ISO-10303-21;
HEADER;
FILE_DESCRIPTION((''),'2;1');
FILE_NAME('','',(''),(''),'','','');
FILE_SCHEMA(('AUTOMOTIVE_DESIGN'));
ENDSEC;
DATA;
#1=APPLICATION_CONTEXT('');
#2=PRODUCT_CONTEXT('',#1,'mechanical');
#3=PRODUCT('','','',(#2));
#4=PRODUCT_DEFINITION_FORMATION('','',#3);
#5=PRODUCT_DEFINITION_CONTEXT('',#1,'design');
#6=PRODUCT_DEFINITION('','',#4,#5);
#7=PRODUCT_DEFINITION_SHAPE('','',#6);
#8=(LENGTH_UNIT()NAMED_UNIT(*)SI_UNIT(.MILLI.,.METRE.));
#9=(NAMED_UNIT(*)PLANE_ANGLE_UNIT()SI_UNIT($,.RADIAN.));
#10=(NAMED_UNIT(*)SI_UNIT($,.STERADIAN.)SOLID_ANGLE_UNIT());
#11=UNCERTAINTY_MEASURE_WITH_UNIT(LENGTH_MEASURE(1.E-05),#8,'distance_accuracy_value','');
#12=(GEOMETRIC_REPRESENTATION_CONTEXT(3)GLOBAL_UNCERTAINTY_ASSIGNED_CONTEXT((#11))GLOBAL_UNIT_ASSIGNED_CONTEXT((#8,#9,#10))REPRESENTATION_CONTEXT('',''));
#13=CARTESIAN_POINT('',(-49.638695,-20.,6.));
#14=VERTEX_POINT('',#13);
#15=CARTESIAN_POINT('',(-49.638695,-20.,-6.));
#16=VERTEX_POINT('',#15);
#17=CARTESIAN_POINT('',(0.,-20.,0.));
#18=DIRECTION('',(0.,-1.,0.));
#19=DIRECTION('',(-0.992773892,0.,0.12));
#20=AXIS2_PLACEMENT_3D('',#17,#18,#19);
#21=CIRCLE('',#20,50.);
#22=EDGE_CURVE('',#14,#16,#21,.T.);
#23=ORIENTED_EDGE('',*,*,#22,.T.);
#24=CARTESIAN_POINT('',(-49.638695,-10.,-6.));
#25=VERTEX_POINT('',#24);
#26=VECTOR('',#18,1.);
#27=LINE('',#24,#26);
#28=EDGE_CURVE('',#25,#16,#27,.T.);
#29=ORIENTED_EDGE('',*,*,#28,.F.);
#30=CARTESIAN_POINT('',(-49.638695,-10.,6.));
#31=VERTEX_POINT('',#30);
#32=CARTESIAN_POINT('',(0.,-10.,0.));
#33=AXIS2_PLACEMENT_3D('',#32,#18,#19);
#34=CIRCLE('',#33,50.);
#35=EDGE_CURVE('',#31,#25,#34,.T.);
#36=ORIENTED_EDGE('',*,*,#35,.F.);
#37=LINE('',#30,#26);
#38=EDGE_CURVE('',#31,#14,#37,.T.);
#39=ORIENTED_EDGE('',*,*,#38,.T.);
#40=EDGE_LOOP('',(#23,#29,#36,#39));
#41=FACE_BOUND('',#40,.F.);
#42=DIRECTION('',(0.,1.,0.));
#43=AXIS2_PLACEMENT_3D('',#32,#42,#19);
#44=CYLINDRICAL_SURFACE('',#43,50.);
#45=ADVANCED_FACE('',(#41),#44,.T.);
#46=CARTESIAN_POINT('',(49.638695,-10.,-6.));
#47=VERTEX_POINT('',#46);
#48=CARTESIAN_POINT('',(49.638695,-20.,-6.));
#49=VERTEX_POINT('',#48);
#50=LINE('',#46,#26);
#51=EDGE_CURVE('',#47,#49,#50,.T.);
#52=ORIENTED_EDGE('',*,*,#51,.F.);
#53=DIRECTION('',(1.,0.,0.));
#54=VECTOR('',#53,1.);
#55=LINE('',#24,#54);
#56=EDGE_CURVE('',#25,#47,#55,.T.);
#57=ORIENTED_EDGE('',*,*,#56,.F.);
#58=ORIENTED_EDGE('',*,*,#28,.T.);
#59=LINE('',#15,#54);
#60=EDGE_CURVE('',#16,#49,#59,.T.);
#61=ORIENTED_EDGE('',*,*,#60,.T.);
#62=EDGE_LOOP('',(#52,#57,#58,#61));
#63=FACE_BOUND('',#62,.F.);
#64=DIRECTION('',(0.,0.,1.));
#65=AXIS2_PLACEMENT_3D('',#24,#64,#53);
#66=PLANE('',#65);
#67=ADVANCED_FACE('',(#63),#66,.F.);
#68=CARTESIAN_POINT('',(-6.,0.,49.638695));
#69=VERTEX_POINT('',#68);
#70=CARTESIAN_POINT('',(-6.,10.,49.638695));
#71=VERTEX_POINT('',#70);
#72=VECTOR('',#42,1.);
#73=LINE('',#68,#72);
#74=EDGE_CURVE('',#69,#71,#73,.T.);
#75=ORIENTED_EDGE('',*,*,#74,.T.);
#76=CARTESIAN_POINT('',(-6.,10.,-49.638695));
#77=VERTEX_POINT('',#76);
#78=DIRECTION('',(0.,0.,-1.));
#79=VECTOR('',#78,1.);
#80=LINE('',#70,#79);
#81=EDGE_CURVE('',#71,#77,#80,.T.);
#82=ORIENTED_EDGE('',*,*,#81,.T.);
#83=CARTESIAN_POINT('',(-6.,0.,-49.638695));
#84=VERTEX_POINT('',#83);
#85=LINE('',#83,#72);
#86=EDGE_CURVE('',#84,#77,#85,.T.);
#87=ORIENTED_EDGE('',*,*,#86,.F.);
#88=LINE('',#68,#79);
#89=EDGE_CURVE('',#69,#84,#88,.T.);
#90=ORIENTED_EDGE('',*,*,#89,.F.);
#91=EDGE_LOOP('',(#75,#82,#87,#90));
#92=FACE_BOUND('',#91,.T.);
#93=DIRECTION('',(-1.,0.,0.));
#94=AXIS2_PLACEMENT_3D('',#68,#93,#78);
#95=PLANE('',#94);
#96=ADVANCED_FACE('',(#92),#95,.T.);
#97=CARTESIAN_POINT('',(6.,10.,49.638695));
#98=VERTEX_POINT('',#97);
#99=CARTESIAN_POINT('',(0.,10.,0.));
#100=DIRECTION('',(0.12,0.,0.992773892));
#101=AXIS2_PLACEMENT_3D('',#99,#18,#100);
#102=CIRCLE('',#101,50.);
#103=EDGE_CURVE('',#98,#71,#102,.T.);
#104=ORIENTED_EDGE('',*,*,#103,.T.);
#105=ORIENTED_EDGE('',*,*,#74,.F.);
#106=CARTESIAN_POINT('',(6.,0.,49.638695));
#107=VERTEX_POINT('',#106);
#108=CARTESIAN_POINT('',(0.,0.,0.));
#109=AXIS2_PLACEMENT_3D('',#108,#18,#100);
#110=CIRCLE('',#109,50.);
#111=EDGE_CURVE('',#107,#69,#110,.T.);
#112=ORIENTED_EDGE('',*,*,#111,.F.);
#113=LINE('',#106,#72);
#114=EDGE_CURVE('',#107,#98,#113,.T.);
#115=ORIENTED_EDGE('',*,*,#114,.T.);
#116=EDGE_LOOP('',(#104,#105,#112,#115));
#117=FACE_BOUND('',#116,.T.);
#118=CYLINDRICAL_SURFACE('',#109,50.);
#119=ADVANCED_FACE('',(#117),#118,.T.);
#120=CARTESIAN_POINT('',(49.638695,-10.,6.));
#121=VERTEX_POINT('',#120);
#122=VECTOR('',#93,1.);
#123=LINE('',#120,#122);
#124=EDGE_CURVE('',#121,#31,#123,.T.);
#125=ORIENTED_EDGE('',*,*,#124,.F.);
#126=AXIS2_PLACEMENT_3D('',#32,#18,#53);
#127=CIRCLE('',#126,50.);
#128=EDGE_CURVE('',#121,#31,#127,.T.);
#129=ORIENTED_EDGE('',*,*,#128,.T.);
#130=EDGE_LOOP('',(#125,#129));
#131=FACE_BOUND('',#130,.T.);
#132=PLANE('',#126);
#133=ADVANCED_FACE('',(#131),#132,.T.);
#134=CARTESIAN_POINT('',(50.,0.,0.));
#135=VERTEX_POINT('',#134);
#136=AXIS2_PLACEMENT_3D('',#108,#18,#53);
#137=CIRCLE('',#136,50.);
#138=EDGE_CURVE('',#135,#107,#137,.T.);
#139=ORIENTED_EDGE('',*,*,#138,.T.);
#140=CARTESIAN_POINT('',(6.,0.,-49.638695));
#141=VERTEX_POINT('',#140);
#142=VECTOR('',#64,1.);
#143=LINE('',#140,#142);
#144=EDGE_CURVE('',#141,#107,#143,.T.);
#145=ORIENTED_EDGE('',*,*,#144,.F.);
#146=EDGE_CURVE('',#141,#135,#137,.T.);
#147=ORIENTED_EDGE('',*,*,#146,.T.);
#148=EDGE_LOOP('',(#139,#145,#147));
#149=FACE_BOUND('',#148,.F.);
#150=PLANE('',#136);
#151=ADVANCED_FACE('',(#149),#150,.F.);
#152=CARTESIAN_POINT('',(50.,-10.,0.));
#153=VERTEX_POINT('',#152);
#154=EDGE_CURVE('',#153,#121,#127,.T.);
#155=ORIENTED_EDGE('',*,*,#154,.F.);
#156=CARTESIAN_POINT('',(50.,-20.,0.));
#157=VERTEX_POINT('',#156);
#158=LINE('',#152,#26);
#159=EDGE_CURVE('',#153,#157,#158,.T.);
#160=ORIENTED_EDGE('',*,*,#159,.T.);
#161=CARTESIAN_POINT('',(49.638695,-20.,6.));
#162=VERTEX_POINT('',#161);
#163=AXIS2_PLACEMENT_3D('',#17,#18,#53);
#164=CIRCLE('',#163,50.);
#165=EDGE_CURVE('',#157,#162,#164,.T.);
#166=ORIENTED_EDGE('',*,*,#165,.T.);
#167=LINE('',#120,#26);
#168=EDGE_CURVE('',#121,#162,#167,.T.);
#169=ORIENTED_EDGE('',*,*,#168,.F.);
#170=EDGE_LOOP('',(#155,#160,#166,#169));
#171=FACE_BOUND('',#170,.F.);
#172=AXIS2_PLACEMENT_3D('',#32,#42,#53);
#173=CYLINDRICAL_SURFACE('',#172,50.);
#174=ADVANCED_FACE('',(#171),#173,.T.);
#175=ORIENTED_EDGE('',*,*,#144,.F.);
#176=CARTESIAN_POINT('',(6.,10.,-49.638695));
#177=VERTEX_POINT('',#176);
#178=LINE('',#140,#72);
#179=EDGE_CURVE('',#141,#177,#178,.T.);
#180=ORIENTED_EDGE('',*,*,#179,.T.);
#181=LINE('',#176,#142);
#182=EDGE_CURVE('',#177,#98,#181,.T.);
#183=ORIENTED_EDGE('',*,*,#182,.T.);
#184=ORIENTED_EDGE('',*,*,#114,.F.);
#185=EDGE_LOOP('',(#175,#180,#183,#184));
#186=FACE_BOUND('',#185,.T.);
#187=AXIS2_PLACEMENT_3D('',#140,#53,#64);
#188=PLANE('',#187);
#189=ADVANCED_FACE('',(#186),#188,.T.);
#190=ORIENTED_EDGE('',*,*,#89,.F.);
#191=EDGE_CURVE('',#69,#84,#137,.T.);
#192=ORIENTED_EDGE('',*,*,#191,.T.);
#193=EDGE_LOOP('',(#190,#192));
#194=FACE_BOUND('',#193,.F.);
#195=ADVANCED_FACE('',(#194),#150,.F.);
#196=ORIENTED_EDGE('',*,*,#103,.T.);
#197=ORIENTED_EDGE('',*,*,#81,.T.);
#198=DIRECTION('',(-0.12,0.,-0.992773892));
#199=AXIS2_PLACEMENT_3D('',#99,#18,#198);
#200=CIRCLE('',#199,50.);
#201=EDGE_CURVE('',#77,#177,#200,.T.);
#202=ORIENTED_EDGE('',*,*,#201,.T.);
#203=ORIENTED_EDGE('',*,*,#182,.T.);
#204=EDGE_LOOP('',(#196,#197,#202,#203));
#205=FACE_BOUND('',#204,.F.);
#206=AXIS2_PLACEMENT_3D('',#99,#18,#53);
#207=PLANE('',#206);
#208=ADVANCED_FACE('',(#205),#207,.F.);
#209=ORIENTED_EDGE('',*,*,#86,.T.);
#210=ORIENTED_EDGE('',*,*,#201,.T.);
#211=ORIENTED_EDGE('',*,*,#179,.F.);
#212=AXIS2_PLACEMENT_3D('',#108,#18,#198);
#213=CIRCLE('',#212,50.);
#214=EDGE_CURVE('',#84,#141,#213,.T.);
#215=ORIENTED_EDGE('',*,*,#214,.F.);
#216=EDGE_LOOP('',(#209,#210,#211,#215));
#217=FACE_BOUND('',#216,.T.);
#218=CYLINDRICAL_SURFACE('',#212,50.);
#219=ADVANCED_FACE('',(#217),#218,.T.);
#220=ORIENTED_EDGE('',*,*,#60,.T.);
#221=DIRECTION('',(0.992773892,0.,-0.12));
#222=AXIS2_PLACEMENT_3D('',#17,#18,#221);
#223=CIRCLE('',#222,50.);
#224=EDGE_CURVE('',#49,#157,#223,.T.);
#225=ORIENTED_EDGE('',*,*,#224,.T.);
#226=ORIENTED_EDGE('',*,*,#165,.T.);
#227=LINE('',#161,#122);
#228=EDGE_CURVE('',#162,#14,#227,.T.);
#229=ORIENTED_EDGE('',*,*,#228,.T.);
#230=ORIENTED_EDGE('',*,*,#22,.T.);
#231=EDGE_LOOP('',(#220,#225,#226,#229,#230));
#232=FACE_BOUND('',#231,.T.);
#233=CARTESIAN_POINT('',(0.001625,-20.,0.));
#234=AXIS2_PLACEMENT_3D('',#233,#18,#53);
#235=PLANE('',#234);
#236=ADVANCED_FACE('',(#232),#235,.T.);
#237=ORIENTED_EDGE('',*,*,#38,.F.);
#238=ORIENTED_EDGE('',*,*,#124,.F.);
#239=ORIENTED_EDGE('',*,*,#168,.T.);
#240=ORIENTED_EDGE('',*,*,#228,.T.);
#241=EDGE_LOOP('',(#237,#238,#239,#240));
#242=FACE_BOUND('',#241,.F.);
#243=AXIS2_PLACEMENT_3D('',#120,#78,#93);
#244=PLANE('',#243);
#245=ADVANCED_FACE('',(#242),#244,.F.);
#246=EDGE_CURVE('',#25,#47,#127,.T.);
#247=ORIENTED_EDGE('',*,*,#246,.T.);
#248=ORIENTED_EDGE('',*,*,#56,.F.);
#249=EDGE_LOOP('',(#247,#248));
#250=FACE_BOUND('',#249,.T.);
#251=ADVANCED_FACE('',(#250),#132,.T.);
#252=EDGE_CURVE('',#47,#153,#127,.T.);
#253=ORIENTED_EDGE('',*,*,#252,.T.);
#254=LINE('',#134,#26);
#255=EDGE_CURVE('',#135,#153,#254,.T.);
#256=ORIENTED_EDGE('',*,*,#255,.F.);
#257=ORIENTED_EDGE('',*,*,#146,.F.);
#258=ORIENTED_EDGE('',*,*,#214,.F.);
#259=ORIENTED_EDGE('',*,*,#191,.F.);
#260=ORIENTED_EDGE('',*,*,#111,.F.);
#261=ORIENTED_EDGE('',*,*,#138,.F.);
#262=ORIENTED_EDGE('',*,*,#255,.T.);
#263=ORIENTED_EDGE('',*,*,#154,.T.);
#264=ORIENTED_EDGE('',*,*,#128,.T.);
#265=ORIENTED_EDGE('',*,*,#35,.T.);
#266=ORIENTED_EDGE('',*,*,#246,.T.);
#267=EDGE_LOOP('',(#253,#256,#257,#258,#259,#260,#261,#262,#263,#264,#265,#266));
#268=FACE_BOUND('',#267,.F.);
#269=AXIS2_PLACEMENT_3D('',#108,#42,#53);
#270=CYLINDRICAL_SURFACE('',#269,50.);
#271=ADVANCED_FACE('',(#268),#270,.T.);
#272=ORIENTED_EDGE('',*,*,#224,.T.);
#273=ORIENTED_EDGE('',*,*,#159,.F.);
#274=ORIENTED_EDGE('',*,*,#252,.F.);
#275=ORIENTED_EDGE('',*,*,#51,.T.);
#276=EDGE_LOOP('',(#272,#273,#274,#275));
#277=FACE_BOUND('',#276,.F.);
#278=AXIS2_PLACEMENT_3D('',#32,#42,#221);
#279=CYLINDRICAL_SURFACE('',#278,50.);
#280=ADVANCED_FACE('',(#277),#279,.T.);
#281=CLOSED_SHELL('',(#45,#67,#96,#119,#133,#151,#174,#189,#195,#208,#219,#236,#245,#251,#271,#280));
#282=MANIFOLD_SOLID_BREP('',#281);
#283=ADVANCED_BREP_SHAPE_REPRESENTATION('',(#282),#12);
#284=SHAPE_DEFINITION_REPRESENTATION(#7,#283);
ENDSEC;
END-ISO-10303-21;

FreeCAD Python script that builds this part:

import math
import FreeCAD as App
import Part
import Sketcher
from FreeCAD import Vector

doc = App.newDocument("Part")
body = doc.addObject("PartDesign::Body", "Body")

# Sketch on XZ plane
sketch1 = body.newObject("Sketcher::SketchObject", "Sketch")
sketch1.AttachmentSupport = (doc.getObject("XZ_Plane"), [""])
sketch1.MapMode = "FlatFace"
sketch1.addGeometry(Part.Circle(Vector(0, 0, 0), Vector(0, 0, 1), 50), False)
sketch1.addConstraint([
    Sketcher.Constraint("Coincident", 0, 3, -1, 1),
    Sketcher.Constraint("Diameter", 0, 100.0),
])
pad1 = body.newObject("PartDesign::Pad", "Pad")
pad1.Profile = sketch1
pad1.Length = 10

# Sketch on XZ plane
sketch2 = body.newObject("Sketcher::SketchObject", "Sketch001")
sketch2.AttachmentSupport = (doc.getObject("XZ_Plane"), [""])
sketch2.MapMode = "FlatFace"
sketch2.AttachmentOffset = App.Placement(Vector(0, 0, 10), App.Rotation())
sketch2.addGeometry([
    Part.LineSegment(Vector(49.638695, 6, 0), Vector(-49.638695, 6, 0)),  # 0
    Part.ArcOfCircle(Part.Circle(Vector(0, 0, 0), Vector(0, 0, 1), 50), math.radians(173.107897), math.radians(186.892103)),  # 1
    Part.LineSegment(Vector(-49.638695, -6, 0), Vector(49.638695, -6, 0)),  # 2
    Part.ArcOfCircle(Part.Circle(Vector(0, 0, 0), Vector(0, 0, 1), 50), math.radians(-6.892103), math.radians(0)),  # 3
    Part.ArcOfCircle(Part.Circle(Vector(0, 0, 0), Vector(0, 0, 1), 50), math.radians(0), math.radians(6.892103)),  # 4
], False)
sketch2.addConstraint([
    Sketcher.Constraint("Coincident", 0, 2, 1, 1),
    Sketcher.Constraint("Coincident", 1, 2, 2, 1),
    Sketcher.Constraint("Coincident", 2, 2, 3, 1),
    Sketcher.Constraint("Tangent", 3, 2, 4, 1),
    Sketcher.Constraint("Coincident", 4, 2, 0, 1),
    Sketcher.Constraint("Horizontal", 0),
    Sketcher.Constraint("Horizontal", 2),
    Sketcher.Constraint("Coincident", 1, 3, -1, 1),
    Sketcher.Constraint("Coincident", 3, 3, -1, 1),
    Sketcher.Constraint("Equal", 1, 3),
    Sketcher.Constraint("Equal", 3, 4),
    Sketcher.Constraint("PointOnObject", 3, 2, -1),
    Sketcher.Constraint("Vertical", 0, 2, 1, 2),
    Sketcher.Constraint("Radius", 1, 50.0),
    Sketcher.Constraint("DistanceY", -1, 1, 0, 2, 6.0),
])
pad2 = body.newObject("PartDesign::Pad", "Pad001")
pad2.Profile = sketch2
pad2.Length = 10

# Sketch on XZ plane
sketch3 = body.newObject("Sketcher::SketchObject", "Sketch002")
sketch3.AttachmentSupport = (doc.getObject("XZ_Plane"), [""])
sketch3.MapMode = "FlatFace"
sketch3.addGeometry([
    Part.LineSegment(Vector(6, -49.638695, 0), Vector(6, 49.638695, 0)),
    Part.ArcOfCircle(Part.Circle(Vector(0, 0, 0), Vector(0, 0, 1), 50), math.radians(83.107897), math.radians(96.892103)),
    Part.LineSegment(Vector(-6, 49.638695, 0), Vector(-6, -49.638695, 0)),
    Part.ArcOfCircle(Part.Circle(Vector(0, 0, 0), Vector(0, 0, 1), 50), math.radians(-96.892103), math.radians(-83.107897)),
], False)
sketch3.addConstraint([
    Sketcher.Constraint("Coincident", 0, 2, 1, 1),
    Sketcher.Constraint("Coincident", 1, 2, 2, 1),
    Sketcher.Constraint("Coincident", 2, 2, 3, 1),
    Sketcher.Constraint("Coincident", 3, 2, 0, 1),
    Sketcher.Constraint("Vertical", 0),
    Sketcher.Constraint("Vertical", 2),
    Sketcher.Constraint("Coincident", 1, 3, -1, 1),
    Sketcher.Constraint("Coincident", 3, 3, -1, 1),
    Sketcher.Constraint("Equal", 1, 3),
    Sketcher.Constraint("Horizontal", 0, 2, 1, 2),
    Sketcher.Constraint("Radius", 1, 50.0),
    Sketcher.Constraint("DistanceX", -1, 1, 0, 2, 6.0),
])
pad3 = body.newObject("PartDesign::Pad", "Pad002")
pad3.Profile = sketch3
pad3.Length = 10
pad3.Reversed = True

doc.recompute()
